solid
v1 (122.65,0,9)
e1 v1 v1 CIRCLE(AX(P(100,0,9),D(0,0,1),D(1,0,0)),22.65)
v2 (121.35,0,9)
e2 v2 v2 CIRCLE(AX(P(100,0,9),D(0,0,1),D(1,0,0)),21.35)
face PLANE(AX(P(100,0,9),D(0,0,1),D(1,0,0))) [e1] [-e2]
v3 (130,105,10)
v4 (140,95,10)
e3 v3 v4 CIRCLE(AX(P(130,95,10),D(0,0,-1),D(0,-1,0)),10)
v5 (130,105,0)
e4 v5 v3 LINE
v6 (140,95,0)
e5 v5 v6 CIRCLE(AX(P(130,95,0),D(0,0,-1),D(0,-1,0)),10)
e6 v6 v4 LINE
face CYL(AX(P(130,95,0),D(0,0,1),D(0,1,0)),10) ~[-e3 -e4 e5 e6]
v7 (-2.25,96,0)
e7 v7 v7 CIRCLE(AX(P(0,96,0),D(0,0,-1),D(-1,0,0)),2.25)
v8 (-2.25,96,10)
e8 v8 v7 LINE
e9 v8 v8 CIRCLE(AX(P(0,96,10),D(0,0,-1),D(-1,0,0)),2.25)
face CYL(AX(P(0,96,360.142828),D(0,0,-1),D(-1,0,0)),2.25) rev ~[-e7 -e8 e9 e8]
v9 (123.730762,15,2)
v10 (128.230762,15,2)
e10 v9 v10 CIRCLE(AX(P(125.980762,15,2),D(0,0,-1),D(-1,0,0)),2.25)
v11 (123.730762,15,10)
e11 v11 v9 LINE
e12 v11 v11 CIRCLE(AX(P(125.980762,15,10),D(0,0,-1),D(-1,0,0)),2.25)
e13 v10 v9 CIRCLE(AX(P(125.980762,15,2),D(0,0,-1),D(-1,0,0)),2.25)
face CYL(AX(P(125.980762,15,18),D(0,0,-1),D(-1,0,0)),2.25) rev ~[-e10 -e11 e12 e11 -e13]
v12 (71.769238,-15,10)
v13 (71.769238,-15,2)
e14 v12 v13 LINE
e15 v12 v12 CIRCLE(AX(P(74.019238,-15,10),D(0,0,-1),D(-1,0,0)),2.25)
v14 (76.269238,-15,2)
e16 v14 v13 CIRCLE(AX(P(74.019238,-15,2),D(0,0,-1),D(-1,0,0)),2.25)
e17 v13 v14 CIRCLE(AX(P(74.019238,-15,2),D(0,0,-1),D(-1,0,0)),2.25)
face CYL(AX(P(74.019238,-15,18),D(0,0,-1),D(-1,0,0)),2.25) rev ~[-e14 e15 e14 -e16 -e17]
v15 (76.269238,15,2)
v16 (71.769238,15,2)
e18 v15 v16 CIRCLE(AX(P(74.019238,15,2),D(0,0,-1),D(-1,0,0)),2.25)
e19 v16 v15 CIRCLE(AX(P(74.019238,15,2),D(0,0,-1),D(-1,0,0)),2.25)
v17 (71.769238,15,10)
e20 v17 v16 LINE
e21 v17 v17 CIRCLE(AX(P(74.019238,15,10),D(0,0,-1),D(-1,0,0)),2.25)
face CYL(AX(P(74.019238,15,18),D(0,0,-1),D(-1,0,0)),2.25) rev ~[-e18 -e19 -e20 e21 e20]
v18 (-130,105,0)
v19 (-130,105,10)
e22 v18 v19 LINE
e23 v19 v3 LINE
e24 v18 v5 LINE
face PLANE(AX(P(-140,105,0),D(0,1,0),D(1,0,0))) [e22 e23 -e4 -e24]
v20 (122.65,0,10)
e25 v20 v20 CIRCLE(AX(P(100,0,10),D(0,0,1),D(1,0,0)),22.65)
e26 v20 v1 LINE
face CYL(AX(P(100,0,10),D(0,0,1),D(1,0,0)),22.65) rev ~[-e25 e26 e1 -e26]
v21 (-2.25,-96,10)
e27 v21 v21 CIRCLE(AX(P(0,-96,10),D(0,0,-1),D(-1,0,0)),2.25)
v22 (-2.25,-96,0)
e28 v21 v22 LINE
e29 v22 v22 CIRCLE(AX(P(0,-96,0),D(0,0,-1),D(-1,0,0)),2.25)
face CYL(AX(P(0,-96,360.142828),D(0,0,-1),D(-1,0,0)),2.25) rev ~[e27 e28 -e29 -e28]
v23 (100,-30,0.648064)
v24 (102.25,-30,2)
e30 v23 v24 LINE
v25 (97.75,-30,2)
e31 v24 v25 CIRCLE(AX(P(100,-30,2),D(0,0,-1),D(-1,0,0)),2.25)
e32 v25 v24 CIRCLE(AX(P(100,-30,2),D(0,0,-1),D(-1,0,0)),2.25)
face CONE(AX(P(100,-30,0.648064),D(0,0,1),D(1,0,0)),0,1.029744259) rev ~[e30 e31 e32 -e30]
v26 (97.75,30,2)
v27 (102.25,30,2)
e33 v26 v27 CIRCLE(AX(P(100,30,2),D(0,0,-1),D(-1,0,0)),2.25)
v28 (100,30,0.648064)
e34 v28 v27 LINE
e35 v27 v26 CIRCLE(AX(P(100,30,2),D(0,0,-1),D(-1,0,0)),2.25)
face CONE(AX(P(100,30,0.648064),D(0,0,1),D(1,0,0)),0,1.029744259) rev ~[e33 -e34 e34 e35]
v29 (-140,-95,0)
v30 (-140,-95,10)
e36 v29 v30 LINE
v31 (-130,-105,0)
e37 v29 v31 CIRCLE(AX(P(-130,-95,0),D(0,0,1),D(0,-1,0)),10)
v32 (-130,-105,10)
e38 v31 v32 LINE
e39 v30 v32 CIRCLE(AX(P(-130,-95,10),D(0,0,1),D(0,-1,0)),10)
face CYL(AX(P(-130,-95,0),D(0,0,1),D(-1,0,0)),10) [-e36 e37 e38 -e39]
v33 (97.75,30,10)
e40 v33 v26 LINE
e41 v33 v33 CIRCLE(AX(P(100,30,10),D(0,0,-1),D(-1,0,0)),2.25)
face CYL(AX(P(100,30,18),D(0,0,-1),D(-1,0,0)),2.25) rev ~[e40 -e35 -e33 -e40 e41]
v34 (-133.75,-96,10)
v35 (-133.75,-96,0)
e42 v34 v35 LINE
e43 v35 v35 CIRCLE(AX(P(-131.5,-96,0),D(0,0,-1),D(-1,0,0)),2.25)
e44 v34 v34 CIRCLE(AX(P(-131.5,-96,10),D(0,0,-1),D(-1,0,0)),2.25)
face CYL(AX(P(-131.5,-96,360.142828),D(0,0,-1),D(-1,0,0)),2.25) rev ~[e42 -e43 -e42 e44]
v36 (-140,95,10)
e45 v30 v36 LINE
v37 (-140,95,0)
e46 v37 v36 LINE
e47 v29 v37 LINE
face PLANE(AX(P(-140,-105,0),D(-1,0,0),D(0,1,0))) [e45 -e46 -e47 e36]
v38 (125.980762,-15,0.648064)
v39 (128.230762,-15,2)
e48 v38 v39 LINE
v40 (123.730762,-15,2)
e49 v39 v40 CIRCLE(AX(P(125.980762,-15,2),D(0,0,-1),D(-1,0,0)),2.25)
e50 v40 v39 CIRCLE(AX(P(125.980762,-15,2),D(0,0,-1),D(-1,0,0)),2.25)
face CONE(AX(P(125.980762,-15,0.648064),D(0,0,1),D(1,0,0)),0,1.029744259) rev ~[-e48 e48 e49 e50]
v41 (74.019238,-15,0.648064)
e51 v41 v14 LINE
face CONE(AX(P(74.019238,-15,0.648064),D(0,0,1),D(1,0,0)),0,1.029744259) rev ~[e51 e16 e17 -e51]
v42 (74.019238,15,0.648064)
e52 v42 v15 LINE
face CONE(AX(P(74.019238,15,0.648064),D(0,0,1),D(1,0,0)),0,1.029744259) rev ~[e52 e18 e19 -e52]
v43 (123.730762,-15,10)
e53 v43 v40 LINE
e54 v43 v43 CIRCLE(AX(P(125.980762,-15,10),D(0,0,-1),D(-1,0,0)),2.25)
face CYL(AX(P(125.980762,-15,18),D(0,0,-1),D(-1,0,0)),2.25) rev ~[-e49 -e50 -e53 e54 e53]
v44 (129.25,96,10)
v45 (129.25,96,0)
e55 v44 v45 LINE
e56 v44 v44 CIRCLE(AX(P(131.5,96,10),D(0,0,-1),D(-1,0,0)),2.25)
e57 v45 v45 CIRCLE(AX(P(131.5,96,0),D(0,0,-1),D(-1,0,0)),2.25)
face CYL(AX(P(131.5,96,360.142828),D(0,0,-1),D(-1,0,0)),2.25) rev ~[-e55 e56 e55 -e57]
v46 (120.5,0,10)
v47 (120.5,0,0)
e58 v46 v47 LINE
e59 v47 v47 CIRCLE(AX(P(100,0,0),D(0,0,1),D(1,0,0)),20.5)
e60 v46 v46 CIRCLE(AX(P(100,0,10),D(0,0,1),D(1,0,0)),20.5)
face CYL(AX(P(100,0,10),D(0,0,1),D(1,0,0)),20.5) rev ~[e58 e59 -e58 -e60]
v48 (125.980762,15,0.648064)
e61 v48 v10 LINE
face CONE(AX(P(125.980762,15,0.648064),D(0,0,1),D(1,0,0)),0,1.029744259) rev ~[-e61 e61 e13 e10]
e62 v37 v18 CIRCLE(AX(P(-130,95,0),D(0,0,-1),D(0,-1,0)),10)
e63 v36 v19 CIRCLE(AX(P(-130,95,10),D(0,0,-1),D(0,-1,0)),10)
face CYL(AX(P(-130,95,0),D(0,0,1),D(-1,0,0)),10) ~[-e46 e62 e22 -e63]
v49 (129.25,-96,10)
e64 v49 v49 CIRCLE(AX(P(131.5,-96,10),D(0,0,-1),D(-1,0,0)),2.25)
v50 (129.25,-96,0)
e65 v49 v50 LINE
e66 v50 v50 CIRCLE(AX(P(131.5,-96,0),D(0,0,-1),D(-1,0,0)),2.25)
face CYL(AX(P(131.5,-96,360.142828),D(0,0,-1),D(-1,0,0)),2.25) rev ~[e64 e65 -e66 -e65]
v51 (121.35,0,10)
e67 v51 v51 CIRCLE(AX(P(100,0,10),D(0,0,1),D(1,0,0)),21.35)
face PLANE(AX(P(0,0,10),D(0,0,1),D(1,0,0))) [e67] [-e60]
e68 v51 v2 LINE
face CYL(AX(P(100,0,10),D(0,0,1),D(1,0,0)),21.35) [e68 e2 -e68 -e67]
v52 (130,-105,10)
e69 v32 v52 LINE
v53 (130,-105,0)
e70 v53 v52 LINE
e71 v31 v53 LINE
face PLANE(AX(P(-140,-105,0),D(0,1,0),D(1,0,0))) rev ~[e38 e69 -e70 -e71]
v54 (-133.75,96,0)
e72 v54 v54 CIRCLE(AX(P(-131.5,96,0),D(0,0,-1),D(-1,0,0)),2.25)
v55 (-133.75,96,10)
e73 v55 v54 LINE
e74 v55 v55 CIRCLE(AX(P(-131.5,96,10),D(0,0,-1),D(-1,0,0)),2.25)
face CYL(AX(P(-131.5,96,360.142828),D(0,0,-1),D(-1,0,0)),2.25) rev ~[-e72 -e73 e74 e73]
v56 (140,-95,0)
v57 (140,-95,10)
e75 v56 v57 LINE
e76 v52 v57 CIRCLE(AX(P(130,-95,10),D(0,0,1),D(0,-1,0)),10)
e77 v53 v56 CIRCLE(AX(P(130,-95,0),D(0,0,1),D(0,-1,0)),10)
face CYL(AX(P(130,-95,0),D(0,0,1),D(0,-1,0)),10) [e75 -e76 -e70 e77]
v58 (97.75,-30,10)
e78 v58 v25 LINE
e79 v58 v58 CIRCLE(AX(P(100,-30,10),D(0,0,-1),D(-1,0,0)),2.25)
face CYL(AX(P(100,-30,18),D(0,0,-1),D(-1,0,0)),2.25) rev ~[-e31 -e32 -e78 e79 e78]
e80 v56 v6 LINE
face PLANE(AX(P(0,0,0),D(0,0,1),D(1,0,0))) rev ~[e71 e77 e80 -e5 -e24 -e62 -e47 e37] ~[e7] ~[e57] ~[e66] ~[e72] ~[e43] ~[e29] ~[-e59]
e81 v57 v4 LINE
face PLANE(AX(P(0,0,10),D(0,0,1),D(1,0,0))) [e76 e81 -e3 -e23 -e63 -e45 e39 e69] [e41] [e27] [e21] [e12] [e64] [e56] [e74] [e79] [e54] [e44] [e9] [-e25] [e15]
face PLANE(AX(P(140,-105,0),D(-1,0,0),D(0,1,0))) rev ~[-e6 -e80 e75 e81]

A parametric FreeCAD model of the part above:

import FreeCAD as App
import Part
import Sketcher

V = App.Vector


def edges_at(feature, points):
    """Names of the edges that pass closest to the given points."""
    edges = feature.Shape.Edges
    near = lambda p: min(range(len(edges)), key=lambda i: edges[i].distToShape(Part.Vertex(*p))[0])
    return sorted({f"Edge{near(p) + 1}" for p in points})

doc = App.newDocument("Part")
body = doc.addObject("PartDesign::Body", "Body")

# Sketch on XY plane
sketch1 = body.newObject("Sketcher::SketchObject", "Sketch")
sketch1.AttachmentSupport = (doc.getObject("XY_Plane"), [""])
sketch1.MapMode = "FlatFace"
sketch1.addGeometry([
    Part.LineSegment(V(-140, 105, 0), V(-140, -105, 0)),
    Part.LineSegment(V(-140, -105, 0), V(140, -105, 0)),
    Part.LineSegment(V(140, -105, 0), V(140, 105, 0)),
    Part.LineSegment(V(140, 105, 0), V(-140, 105, 0)),
], False)
sketch1.addConstraint([
    Sketcher.Constraint("Coincident", 0, 2, 1, 1),
    Sketcher.Constraint("Coincident", 1, 2, 2, 1),
    Sketcher.Constraint("Coincident", 2, 2, 3, 1),
    Sketcher.Constraint("Coincident", 3, 2, 0, 1),
    Sketcher.Constraint("Vertical", 0),
    Sketcher.Constraint("Horizontal", 1),
    Sketcher.Constraint("Vertical", 2),
    Sketcher.Constraint("Horizontal", 3),
    Sketcher.Constraint("Symmetric", 0, 2, 2, 2, -1, 1),
    Sketcher.Constraint("DistanceX", 1, 1, 1, 2, 280.0),
    Sketcher.Constraint("DistanceY", 0, 2, 0, 1, 210.0),
])
pad1 = body.newObject("PartDesign::Pad", "Pad")
pad1.Profile = sketch1
pad1.Length = 10
body2 = doc.addObject("PartDesign::Body", "Body001")

# Sketch on XY plane
sketch2 = body2.newObject("Sketcher::SketchObject", "Sketch001")
sketch2.AttachmentSupport = (doc.getObject("XY_Plane001"), [""])
sketch2.MapMode = "FlatFace"
sketch2.AttachmentOffset = App.Placement(V(0, 0, 10), App.Rotation())
sketch2.addGeometry(Part.Circle(V(100, 0, 0), V(0, 0, 1), 20.5), False)
sketch2.addConstraint([
    Sketcher.Constraint("PointOnObject", 0, 3, -1),
    Sketcher.Constraint("Diameter", 0, 41.0),
    Sketcher.Constraint("DistanceX", -1, 1, 0, 3, 100.0),
])
pad2 = body2.newObject("PartDesign::Pad", "Pad001")
pad2.Profile = sketch2
pad2.Length = 10
pad2.Reversed = True
doc.recompute()

boolean = body.newObject("PartDesign::Boolean", "Boolean")
boolean.Type = "Cut"
boolean.addObjects([body2])
doc.recompute()

fillet = body.newObject("PartDesign::Fillet", "Fillet")
fillet.Base = (boolean, edges_at(boolean, [
    (-140, 105, 5),
    (140, 105, 5),
    (140, -105, 5),
    (-140, -105, 5),
]))
fillet.Radius = 10

# Sketch on XY plane
sketch3 = body.newObject("Sketcher::SketchObject", "Sketch002")
sketch3.AttachmentSupport = (doc.getObject("XY_Plane"), [""])
sketch3.MapMode = "FlatFace"
sketch3.AttachmentOffset = App.Placement(V(0, 0, 10), App.Rotation())
sketch3.addGeometry([
    Part.Circle(V(-131.5, 96, 0), V(0, 0, 1), 2.25),  # 0
    Part.Circle(V(0, 96, 0), V(0, 0, 1), 2.25),  # 1
    Part.Circle(V(131.5, 96, 0), V(0, 0, 1), 2.25),  # 2
    Part.Circle(V(131.5, -96, 0), V(0, 0, 1), 2.25),  # 3
    Part.Circle(V(0, -96, 0), V(0, 0, 1), 2.25),  # 4
    Part.Circle(V(-131.5, -96, 0), V(0, 0, 1), 2.25),  # 5
], False)
sketch3.addConstraint([
    Sketcher.Constraint("Equal", 0, 1),
    Sketcher.Constraint("Equal", 1, 2),
    Sketcher.Constraint("Equal", 2, 3),
    Sketcher.Constraint("Equal", 3, 4),
    Sketcher.Constraint("Equal", 4, 5),
    Sketcher.Constraint("Symmetric", 0, 3, 3, 3, -1, 1),
    Sketcher.Constraint("Symmetric", 1, 3, 4, 3, -1, 1),
    Sketcher.Constraint("Symmetric", 2, 3, 5, 3, -1, 1),
    Sketcher.Constraint("Symmetric", 0, 3, 2, 3, -2),
    Sketcher.Constraint("PointOnObject", 1, 3, -2),
    Sketcher.Constraint("Horizontal", 0, 3, 1, 3),
    Sketcher.Constraint("Diameter", 0, 4.5),
    Sketcher.Constraint("DistanceY", -1, 1, 0, 3, 96.0),
    Sketcher.Constraint("DistanceX", 0, 3, 2, 3, 263.0),
])
doc.recompute()
hole = body.newObject("PartDesign::Hole", "Hole")
hole.Profile = sketch3
hole.ThreadType = "None"
hole.Diameter = 4.5
hole.DepthType = "ThroughAll"

# Sketch on XY plane
sketch4 = body.newObject("Sketcher::SketchObject", "Sketch003")
sketch4.AttachmentSupport = (doc.getObject("XY_Plane"), [""])
sketch4.MapMode = "FlatFace"
sketch4.AttachmentOffset = App.Placement(V(0, 0, 10), App.Rotation())
sketch4.addGeometry([
    Part.Circle(V(100, 30, 0), V(0, 0, 1), 2.25),  # 0
    Part.Circle(V(125.980762, 15, 0), V(0, 0, 1), 2.25),  # 1
    Part.Circle(V(125.980762, -15, 0), V(0, 0, 1), 2.25),  # 2
    Part.Circle(V(100, -30, 0), V(0, 0, 1), 2.25),  # 3
    Part.Circle(V(74.019238, -15, 0), V(0, 0, 1), 2.25),  # 4
    Part.Circle(V(74.019238, 15, 0), V(0, 0, 1), 2.25),  # 5
], False)
sketch4.addConstraint([
    Sketcher.Constraint("Equal", 0, 1),
    Sketcher.Constraint("Equal", 1, 2),
    Sketcher.Constraint("Equal", 2, 3),
    Sketcher.Constraint("Equal", 3, 4),
    Sketcher.Constraint("Equal", 4, 5),
    Sketcher.Constraint("Symmetric", 1, 3, 2, 3, -1),
    Sketcher.Constraint("Symmetric", 0, 3, 3, 3, -1),
    Sketcher.Constraint("Symmetric", 4, 3, 5, 3, -1),
    Sketcher.Constraint("Horizontal", 2, 3, 4, 3),
    Sketcher.Constraint("Diameter", 0, 4.5),
    Sketcher.Constraint("DistanceX", -1, 1, 0, 3, 100.0),
    Sketcher.Constraint("DistanceY", -1, 1, 0, 3, 30.0),
    Sketcher.Constraint("DistanceY", -1, 1, 1, 3, 15.0),
    Sketcher.Constraint("DistanceX", -1, 1, 1, 3, 125.980762),
    Sketcher.Constraint("DistanceX", -1, 1, 4, 3, 74.019238),
])
doc.recompute()
hole2 = body.newObject("PartDesign::Hole", "Hole001")
hole2.Profile = sketch4
hole2.ThreadType = "None"
hole2.Diameter = 4.5
hole2.DepthType = "Dimension"
hole2.Depth = 8
hole2.DrillPoint = "Angled"
hole2.DrillPointAngle = 118
body3 = doc.addObject("PartDesign::Body", "Body002")

# Sketch on XY plane
sketch5 = body3.newObject("Sketcher::SketchObject", "Sketch004")
sketch5.AttachmentSupport = (doc.getObject("XY_Plane002"), [""])
sketch5.MapMode = "FlatFace"
sketch5.AttachmentOffset = App.Placement(V(0, 0, 10), App.Rotation())
sketch5.addGeometry([
    Part.Circle(V(100, 0, 0), V(0, 0, 1), 22.65),
    Part.Circle(V(100, 0, 0), V(0, 0, 1), 21.35),
], False)
sketch5.addConstraint([
    Sketcher.Constraint("Coincident", 1, 3, 0, 3),
    Sketcher.Constraint("PointOnObject", 0, 3, -1),
    Sketcher.Constraint("Diameter", 0, 45.3),
    Sketcher.Constraint("Diameter", 1, 42.7),
    Sketcher.Constraint("DistanceX", -1, 1, 0, 3, 100.0),
])
pad3 = body3.newObject("PartDesign::Pad", "Pad002")
pad3.Profile = sketch5
pad3.Length = 1
pad3.Reversed = True
doc.recompute()

boolean2 = body.newObject("PartDesign::Boolean", "Boolean001")
boolean2.Type = "Cut"
boolean2.addObjects([body3])

doc.recompute()
